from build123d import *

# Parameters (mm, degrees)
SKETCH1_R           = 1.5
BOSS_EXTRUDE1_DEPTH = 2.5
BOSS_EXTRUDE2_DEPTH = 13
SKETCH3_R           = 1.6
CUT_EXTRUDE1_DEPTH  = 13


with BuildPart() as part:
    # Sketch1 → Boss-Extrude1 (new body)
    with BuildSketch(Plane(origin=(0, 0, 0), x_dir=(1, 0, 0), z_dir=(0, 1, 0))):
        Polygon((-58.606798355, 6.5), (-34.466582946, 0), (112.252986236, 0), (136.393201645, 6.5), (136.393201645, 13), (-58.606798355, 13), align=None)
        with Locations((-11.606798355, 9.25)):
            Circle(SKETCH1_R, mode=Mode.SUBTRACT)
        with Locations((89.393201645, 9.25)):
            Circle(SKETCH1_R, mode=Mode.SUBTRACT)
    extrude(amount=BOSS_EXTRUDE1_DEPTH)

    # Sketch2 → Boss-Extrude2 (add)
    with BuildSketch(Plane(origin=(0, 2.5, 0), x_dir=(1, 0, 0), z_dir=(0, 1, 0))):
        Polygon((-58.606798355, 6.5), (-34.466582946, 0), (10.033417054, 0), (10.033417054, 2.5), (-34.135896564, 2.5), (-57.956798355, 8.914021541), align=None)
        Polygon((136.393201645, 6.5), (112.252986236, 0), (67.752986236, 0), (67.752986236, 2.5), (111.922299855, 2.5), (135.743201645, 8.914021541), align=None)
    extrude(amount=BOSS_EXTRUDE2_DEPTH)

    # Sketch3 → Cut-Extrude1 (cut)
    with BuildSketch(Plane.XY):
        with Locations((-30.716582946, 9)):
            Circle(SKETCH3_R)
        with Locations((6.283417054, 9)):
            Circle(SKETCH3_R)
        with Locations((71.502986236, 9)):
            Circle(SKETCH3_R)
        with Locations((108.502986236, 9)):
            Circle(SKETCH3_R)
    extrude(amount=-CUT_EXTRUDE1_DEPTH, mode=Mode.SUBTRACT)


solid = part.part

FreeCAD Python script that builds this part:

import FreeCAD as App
import Part
import Sketcher

V = App.Vector
Q = App.Units.Quantity


def add_polygon(sketch, points):
    """Adds a closed chain of lines whose ends are joined by coincident constraints."""
    first, n = sketch.GeometryCount, len(points)
    for a, b in zip(points, points[1:] + points[:1]):
        sketch.addGeometry(Part.LineSegment(App.Vector(*a, 0), App.Vector(*b, 0)), False)
    for i in range(n):
        sketch.addConstraint(Sketcher.Constraint("Coincident", first + i, 2, first + (i + 1) % n, 1))

doc = App.newDocument("Part")
body = doc.addObject("PartDesign::Body", "Body")

sketch1 = body.newObject("Sketcher::SketchObject", "Sketch")
sketch1.AttachmentSupport = (doc.getObject("XZ_Plane"), [""])
sketch1.MapMode = "FlatFace"
add_polygon(sketch1, [(-58.6, -6.5), (-34.5, 0), (112.3, 0), (136.4, -6.5), (136.4, -13), (-58.6, -13)])
sketch1.addGeometry(Part.Circle(V(-11.6, -9.2, 0), V(0, 0, 1), 1.5), False)
sketch1.addGeometry(Part.Circle(V(89.4, -9.2, 0), V(0, 0, 1), 1.5), False)
sketch1.addConstraint([
    Sketcher.Constraint("Horizontal", 1),
    Sketcher.Constraint("Vertical", 3),
    Sketcher.Constraint("Horizontal", 4),
    Sketcher.Constraint("Vertical", 5),
    Sketcher.Constraint("Equal", 6, 7),
    Sketcher.Constraint("PointOnObject", 0, 2, -1),
    Sketcher.Constraint("Horizontal", 6, 3, 7, 3),
    Sketcher.Constraint("Horizontal", 2, 2, 5, 2),
    Sketcher.Constraint("Equal", 0, 2),
    Sketcher.Constraint("Diameter", 6, Q("3 mm")),
    Sketcher.Constraint("DistanceX", 4, 2, 4, 1, Q("195 mm")),
    Sketcher.Constraint("Distance", 0, Q("25 mm")),
    Sketcher.Constraint("DistanceY", 3, 2, 3, 1, Q("6.5 mm")),
    Sketcher.Constraint("DistanceY", 3, 2, -1, 1, Q("13 mm")),
    Sketcher.Constraint("DistanceX", 6, 3, 7, 3, Q("101 mm")),
    Sketcher.Constraint("DistanceX", 7, 3, 2, 2, Q("47 mm")),
    Sketcher.Constraint("DistanceY", 6, 3, -1, 1, Q("9.25 mm")),
    Sketcher.Constraint("DistanceX", 6, 3, -1, 1, Q("11.606798 mm")),
])
pad1 = body.newObject("PartDesign::Pad", "Pad")
pad1.Profile = sketch1
pad1.Length = 2.5
pad1.Reversed = True

sketch2 = body.newObject("Sketcher::SketchObject", "Sketch001")
sketch2.AttachmentSupport = (doc.getObject("XZ_Plane"), [""])
sketch2.MapMode = "FlatFace"
sketch2.AttachmentOffset = App.Placement(V(0, 0, -2.5), App.Rotation())
add_polygon(sketch2, [(-58.6, -6.5), (-34.5, 0), (10, 0), (10, -2.5), (-34.1, -2.5), (-58, -8.9)])
add_polygon(sketch2, [(112.3, 0), (136.4, -6.5), (135.7, -8.9), (111.9, -2.5), (67.8, -2.5), (67.8, 0)])
sketch2.addConstraint([
    Sketcher.Constraint("Horizontal", 1),
    Sketcher.Constraint("Vertical", 2),
    Sketcher.Constraint("Horizontal", 3),
    Sketcher.Constraint("Horizontal", 9),
    Sketcher.Constraint("Vertical", 10),
    Sketcher.Constraint("Horizontal", 11),
    Sketcher.Constraint("PointOnObject", 0, 2, -1),
    Sketcher.Constraint("PointOnObject", 10, 2, -1),
    Sketcher.Constraint("Parallel", 0, 4),
    Sketcher.Constraint("Perpendicular", 4, 5),
    Sketcher.Constraint("Perpendicular", 6, 7),
    Sketcher.Constraint("Perpendicular", 7, 8),
    Sketcher.Constraint("Horizontal", 5, 2, 6, 2),
    Sketcher.Constraint("Horizontal", 4, 2, 7, 2),
    Sketcher.Constraint("Horizontal", 3, 2, 8, 2),
    Sketcher.Constraint("Equal", 3, 9),
    Sketcher.Constraint("Equal", 1, 11),
    Sketcher.Constraint("Distance", 0, Q("25 mm")),
    Sketcher.Constraint("DistanceX", 1, 1, 1, 2, Q("44.5 mm")),
    Sketcher.Constraint("DistanceY", 2, 2, 2, 1, Q("2.5 mm")),
    Sketcher.Constraint("DistanceY", 5, 2, 3, 2, Q("4 mm")),
    Sketcher.Constraint("Distance", 5, Q("2.5 mm")),
    Sketcher.Constraint("DistanceX", 4, 2, 6, 2, Q("194.35 mm")),
    Sketcher.Constraint("DistanceX", 4, 2, -1, 1, Q("57.956798 mm")),
])
pad2 = body.newObject("PartDesign::Pad", "Pad001")
pad2.Profile = sketch2
pad2.Length = 13
pad2.Reversed = True

sketch3 = body.newObject("Sketcher::SketchObject", "Sketch002")
sketch3.AttachmentSupport = (doc.getObject("XY_Plane"), [""])
sketch3.MapMode = "FlatFace"
sketch3.addGeometry([
    Part.Circle(V(-30.7, 9, 0), V(0, 0, 1), 1.6),
    Part.Circle(V(6.3, 9, 0), V(0, 0, 1), 1.6),
    Part.Circle(V(71.5, 9, 0), V(0, 0, 1), 1.6),
    Part.Circle(V(108.5, 9, 0), V(0, 0, 1), 1.6),
], False)
sketch3.addConstraint([
    Sketcher.Constraint("Equal", 0, 1),
    Sketcher.Constraint("Equal", 1, 2),
    Sketcher.Constraint("Equal", 2, 3),
    Sketcher.Constraint("Horizontal", 0, 3, 1, 3),
    Sketcher.Constraint("Horizontal", 1, 3, 2, 3),
    Sketcher.Constraint("Horizontal", 2, 3, 3, 3),
    Sketcher.Constraint("Diameter", 0, Q("3.2 mm")),
    Sketcher.Constraint("DistanceY", -1, 1, 0, 3, Q("9 mm")),
    Sketcher.Constraint("DistanceX", 0, 3, 1, 3, Q("37 mm")),
    Sketcher.Constraint("DistanceX", 2, 3, 3, 3, Q("37 mm")),
    Sketcher.Constraint("DistanceX", 1, 3, 2, 3, Q("65.219569 mm")),
    Sketcher.Constraint("DistanceX", 0, 3, -1, 1, Q("30.716583 mm")),
])
pocket1 = body.newObject("PartDesign::Pocket", "Pocket")
pocket1.Profile = sketch3
pocket1.Length = 13

doc.recompute()
